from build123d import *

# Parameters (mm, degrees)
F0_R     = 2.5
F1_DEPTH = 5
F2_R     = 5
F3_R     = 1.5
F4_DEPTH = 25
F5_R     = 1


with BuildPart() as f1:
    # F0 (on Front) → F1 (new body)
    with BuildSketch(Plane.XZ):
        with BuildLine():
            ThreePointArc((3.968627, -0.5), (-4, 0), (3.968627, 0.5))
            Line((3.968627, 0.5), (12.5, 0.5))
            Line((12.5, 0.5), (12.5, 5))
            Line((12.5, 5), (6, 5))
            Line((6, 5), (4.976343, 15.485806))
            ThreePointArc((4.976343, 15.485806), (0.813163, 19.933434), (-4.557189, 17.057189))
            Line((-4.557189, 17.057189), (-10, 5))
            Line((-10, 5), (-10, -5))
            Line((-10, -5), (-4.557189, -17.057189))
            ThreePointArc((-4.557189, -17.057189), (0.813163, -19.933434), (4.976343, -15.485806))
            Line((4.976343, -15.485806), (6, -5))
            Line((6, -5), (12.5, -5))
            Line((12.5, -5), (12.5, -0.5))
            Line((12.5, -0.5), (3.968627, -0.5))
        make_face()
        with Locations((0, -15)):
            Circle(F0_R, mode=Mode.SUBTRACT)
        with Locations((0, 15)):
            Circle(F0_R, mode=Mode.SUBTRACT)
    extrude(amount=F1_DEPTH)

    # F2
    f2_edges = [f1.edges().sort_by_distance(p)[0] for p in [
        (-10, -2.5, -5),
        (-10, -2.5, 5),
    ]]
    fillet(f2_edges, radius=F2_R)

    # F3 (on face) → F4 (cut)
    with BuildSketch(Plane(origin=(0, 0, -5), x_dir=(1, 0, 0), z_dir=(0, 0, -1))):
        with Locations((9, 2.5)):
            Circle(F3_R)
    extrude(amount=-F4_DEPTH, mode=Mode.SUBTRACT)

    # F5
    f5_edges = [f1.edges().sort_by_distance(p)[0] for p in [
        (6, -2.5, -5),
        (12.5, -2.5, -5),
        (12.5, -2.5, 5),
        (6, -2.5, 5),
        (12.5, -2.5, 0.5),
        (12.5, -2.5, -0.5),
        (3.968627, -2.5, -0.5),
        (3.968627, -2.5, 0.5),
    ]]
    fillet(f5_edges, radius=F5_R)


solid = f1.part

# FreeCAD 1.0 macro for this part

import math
import FreeCAD as App
import Part
import Sketcher
Q = App.Units.Quantity


def edges_at(feature, points):
    """Names of the edges that pass closest to the given points."""
    edges = feature.Shape.Edges
    near = lambda p: min(range(len(edges)), key=lambda i: edges[i].distToShape(Part.Vertex(*p))[0])
    return sorted({f"Edge{near(p) + 1}" for p in points})

doc = App.newDocument("Part")
params = doc.addObject("Spreadsheet::Sheet", "Params")
for row, (alias, value) in enumerate([
    ("sketch1_diameter", "5 mm"),
    ("sketch1_radius", "4 mm"),
    ("sketch1_radius2", "5 mm"),
    ("sketch1_height", "10 mm"),
    ("sketch1_width", "6.5 mm"),
    ("pad1_length", "5 mm"),
    ("fillet_radius", "5 mm"),
    ("sketch2_diameter", "3 mm"),
    ("pocket1_length", "25 mm"),
    ("fillet2_radius", "1 mm"),
], start=1):
    params.set(f"A{row}", alias)
    params.set(f"B{row}", "=" + value)
    params.setAlias(f"B{row}", alias)

body = doc.addObject("PartDesign::Body", "Body")

# Sketch on XZ plane
sketch1 = body.newObject("Sketcher::SketchObject", "Sketch")
sketch1.AttachmentSupport = (doc.getObject("XZ_Plane"), [""])
sketch1.MapMode = "FlatFace"
sketch1.addGeometry([
    Part.ArcOfCircle(Part.Circle(App.Vector(0, 0, 0), App.Vector(0, 0, 1), 4), math.radians(7), math.radians(353)),  # 0
    Part.LineSegment(App.Vector(4, 0.5, 0), App.Vector(12.5, 0.5, 0)),  # 1
    Part.LineSegment(App.Vector(12.5, 0.5, 0), App.Vector(12.5, 5, 0)),  # 2
    Part.LineSegment(App.Vector(12.5, 5, 0), App.Vector(6, 5, 0)),  # 3
    Part.LineSegment(App.Vector(6, 5, 0), App.Vector(5, 15.5, 0)),  # 4
    Part.ArcOfCircle(Part.Circle(App.Vector(0, 15, 0), App.Vector(0, 0, 1), 5), math.radians(6), math.radians(156)),  # 5
    Part.LineSegment(App.Vector(-4.6, 17.1, 0), App.Vector(-10, 5, 0)),  # 6
    Part.LineSegment(App.Vector(-10, 5, 0), App.Vector(-10, -5, 0)),  # 7
    Part.LineSegment(App.Vector(-10, -5, 0), App.Vector(-4.6, -17.1, 0)),  # 8
    Part.ArcOfCircle(Part.Circle(App.Vector(0, -15, 0), App.Vector(0, 0, 1), 5), math.radians(-156), math.radians(-6)),  # 9
    Part.LineSegment(App.Vector(5, -15.5, 0), App.Vector(6, -5, 0)),  # 10
    Part.LineSegment(App.Vector(6, -5, 0), App.Vector(12.5, -5, 0)),  # 11
    Part.LineSegment(App.Vector(12.5, -5, 0), App.Vector(12.5, -0.5, 0)),  # 12
    Part.LineSegment(App.Vector(12.5, -0.5, 0), App.Vector(4, -0.5, 0)),  # 13
    Part.Circle(App.Vector(0, -15, 0), App.Vector(0, 0, 1), 2.5),  # 14
    Part.Circle(App.Vector(0, 15, 0), App.Vector(0, 0, 1), 2.5),  # 15
], False)
sketch1.addConstraint([
    Sketcher.Constraint("Coincident", 0, 1, 1, 1),
    Sketcher.Constraint("Coincident", 1, 2, 2, 1),
    Sketcher.Constraint("Coincident", 2, 2, 3, 1),
    Sketcher.Constraint("Coincident", 3, 2, 4, 1),
    Sketcher.Constraint("Tangent", 4, 2, 5, 1),
    Sketcher.Constraint("Tangent", 5, 2, 6, 1),
    Sketcher.Constraint("Coincident", 6, 2, 7, 1),
    Sketcher.Constraint("Coincident", 7, 2, 8, 1),
    Sketcher.Constraint("Tangent", 8, 2, 9, 1),
    Sketcher.Constraint("Tangent", 9, 2, 10, 1),
    Sketcher.Constraint("Coincident", 10, 2, 11, 1),
    Sketcher.Constraint("Coincident", 11, 2, 12, 1),
    Sketcher.Constraint("Coincident", 12, 2, 13, 1),
    Sketcher.Constraint("Coincident", 13, 2, 0, 2),
    Sketcher.Constraint("Horizontal", 1),
    Sketcher.Constraint("Vertical", 2),
    Sketcher.Constraint("Horizontal", 3),
    Sketcher.Constraint("Vertical", 7),
    Sketcher.Constraint("Horizontal", 11),
    Sketcher.Constraint("Vertical", 12),
    Sketcher.Constraint("Horizontal", 13),
    Sketcher.Constraint("Coincident", 0, 3, -1, 1),
    Sketcher.Constraint("Coincident", 14, 3, 9, 3),
    Sketcher.Constraint("Coincident", 15, 3, 5, 3),
    Sketcher.Constraint("Equal", 5, 9),
    Sketcher.Constraint("Equal", 14, 15),
    Sketcher.Constraint("Symmetric", 5, 3, 9, 3, -1, 1),
    Sketcher.Constraint("Symmetric", 5, 2, 8, 2, -1),
    Sketcher.Constraint("Symmetric", 3, 2, 10, 2, -1),
    Sketcher.Constraint("Symmetric", 1, 2, 12, 2, -1),
    Sketcher.Constraint("Horizontal", 3, 2, 6, 2),
    Sketcher.Constraint("Diameter", 14, Q("5 mm")),
    Sketcher.Constraint("Radius", 0, Q("4 mm")),
    Sketcher.Constraint("Radius", 5, Q("5 mm")),
    Sketcher.Constraint("DistanceY", 7, 2, 7, 1, Q("10 mm")),
    Sketcher.Constraint("DistanceX", 3, 2, 3, 1, Q("6.5 mm")),
    Sketcher.Constraint("DistanceY", 2, 1, 2, 2, Q("4.5 mm")),
    Sketcher.Constraint("DistanceY", -1, 1, 5, 3, Q("15.000001 mm")),
    Sketcher.Constraint("DistanceX", -1, 1, 3, 2, Q("6 mm")),
    Sketcher.Constraint("DistanceX", 6, 2, -1, 1, Q("10 mm")),
])
sketch1.setExpression("Constraints[31]", "Params.sketch1_diameter")
sketch1.setExpression("Constraints[32]", "Params.sketch1_radius")
sketch1.setExpression("Constraints[33]", "Params.sketch1_radius2")
sketch1.setExpression("Constraints[34]", "Params.sketch1_height")
sketch1.setExpression("Constraints[35]", "Params.sketch1_width")
pad1 = body.newObject("PartDesign::Pad", "Pad")
pad1.Profile = sketch1
pad1.setExpression("Length", "Params.pad1_length")
doc.recompute()

fillet = body.newObject("PartDesign::Fillet", "Fillet")
fillet.Base = (pad1, edges_at(pad1, [(-10, -2.5, -5), (-10, -2.5, 5)]))
fillet.setExpression("Radius", "Params.fillet_radius")

# Sketch on XY plane
sketch2 = body.newObject("Sketcher::SketchObject", "Sketch001")
sketch2.AttachmentSupport = (doc.getObject("XY_Plane"), [""])
sketch2.MapMode = "FlatFace"
sketch2.AttachmentOffset = App.Placement(App.Vector(0, 0, -5), App.Rotation())
sketch2.addGeometry(Part.Circle(App.Vector(9, -2.5, 0), App.Vector(0, 0, 1), 1.5), False)
sketch2.addConstraint([
    Sketcher.Constraint("Diameter", 0, Q("3 mm")),
    Sketcher.Constraint("DistanceX", -1, 1, 0, 3, Q("9 mm")),
    Sketcher.Constraint("DistanceY", 0, 3, -1, 1, Q("2.5 mm")),
])
sketch2.setExpression("Constraints[0]", "Params.sketch2_diameter")
pocket1 = body.newObject("PartDesign::Pocket", "Pocket")
pocket1.Profile = sketch2
pocket1.setExpression("Length", "Params.pocket1_length")
pocket1.Reversed = True
doc.recompute()

fillet2 = body.newObject("PartDesign::Fillet", "Fillet001")
fillet2.Base = (pocket1, edges_at(pocket1, [
    (6, -2.5, -5),
    (12.5, -2.5, -5),
    (12.5, -2.5, 5),
    (6, -2.5, 5),
    (12.5, -2.5, 0.5),
    (12.5, -2.5, -0.5),
    (3.969, -2.5, -0.5),
    (3.969, -2.5, 0.5),
]))
fillet2.setExpression("Radius", "Params.fillet2_radius")

doc.recompute()
